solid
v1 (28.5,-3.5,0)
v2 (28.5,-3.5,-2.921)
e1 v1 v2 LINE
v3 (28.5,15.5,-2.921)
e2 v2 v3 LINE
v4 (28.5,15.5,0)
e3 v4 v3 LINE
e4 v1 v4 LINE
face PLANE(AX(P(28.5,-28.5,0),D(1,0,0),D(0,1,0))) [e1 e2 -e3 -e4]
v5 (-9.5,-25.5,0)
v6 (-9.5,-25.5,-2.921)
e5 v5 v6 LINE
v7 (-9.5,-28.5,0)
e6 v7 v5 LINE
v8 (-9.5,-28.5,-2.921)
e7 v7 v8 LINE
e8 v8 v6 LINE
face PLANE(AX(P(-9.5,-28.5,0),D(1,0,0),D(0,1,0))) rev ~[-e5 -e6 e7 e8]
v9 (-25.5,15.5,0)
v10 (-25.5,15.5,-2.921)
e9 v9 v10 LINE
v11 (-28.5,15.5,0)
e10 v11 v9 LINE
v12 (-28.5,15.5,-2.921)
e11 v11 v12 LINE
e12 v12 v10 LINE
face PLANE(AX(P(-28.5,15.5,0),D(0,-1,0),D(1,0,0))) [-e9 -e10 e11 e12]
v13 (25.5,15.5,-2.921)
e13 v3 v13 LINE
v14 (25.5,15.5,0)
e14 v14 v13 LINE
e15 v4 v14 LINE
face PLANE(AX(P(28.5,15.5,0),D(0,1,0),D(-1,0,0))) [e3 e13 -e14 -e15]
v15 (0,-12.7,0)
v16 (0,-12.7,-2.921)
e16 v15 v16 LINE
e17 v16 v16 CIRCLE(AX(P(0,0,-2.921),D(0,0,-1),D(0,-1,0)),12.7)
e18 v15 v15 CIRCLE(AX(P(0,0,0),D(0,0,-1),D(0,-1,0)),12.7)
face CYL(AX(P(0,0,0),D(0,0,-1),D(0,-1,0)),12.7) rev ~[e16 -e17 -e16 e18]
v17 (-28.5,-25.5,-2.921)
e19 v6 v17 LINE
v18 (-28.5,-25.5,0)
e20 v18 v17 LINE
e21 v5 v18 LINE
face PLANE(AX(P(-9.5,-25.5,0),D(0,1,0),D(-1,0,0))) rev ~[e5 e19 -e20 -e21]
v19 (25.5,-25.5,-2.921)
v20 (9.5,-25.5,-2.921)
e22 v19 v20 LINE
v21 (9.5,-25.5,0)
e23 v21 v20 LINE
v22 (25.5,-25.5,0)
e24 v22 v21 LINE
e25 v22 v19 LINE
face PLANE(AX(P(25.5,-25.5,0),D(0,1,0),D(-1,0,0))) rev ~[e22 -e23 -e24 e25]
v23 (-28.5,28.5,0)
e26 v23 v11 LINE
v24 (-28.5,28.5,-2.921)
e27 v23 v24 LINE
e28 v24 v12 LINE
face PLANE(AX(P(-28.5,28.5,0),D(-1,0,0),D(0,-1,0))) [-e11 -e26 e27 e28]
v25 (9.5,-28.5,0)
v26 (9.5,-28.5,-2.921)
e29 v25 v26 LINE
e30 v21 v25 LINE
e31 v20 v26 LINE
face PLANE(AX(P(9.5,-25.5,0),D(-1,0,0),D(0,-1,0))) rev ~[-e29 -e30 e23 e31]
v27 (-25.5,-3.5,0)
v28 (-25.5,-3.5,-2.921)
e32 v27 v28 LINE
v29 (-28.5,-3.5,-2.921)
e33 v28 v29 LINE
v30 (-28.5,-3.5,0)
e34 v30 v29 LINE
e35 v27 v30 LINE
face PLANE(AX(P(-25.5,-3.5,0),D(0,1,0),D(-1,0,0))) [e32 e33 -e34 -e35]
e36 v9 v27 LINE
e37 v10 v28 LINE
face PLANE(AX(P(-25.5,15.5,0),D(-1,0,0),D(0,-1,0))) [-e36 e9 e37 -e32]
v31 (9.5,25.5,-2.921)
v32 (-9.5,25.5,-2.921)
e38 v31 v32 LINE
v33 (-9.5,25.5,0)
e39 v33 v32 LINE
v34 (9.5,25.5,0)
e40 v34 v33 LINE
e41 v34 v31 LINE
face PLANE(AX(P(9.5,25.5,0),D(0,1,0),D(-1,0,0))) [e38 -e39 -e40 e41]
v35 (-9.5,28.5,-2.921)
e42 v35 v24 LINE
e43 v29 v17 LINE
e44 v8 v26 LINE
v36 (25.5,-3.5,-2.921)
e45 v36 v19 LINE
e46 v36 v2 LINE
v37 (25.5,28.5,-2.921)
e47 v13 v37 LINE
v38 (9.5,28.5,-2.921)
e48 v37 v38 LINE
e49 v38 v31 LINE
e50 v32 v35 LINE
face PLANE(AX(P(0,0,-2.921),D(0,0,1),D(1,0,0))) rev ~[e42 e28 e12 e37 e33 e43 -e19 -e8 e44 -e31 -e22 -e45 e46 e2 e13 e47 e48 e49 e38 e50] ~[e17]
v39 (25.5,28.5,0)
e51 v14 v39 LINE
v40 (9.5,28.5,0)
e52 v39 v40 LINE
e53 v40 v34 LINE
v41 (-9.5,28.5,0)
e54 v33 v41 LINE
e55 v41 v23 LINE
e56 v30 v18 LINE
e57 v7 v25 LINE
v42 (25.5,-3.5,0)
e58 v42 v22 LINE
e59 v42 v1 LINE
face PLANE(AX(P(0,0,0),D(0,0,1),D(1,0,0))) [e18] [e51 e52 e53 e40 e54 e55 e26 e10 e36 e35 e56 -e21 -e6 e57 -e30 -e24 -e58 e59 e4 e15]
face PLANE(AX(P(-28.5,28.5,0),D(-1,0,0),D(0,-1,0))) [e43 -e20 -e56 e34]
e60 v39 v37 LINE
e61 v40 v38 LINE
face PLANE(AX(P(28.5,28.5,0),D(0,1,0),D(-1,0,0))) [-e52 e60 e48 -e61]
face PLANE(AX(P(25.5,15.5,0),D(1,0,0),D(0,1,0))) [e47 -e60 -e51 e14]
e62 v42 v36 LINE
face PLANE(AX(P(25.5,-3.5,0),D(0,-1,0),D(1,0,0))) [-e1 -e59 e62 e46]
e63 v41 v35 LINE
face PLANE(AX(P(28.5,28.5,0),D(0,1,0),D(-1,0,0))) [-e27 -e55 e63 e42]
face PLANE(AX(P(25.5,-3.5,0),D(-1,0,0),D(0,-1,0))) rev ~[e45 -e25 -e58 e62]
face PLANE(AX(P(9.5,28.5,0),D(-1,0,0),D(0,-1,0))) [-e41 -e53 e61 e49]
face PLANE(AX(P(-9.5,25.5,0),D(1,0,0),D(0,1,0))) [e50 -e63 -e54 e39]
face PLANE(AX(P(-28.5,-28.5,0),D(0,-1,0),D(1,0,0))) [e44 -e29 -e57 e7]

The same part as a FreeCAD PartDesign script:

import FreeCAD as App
import Part
import Sketcher


def add_polygon(sketch, points):
    """Adds a closed chain of lines whose ends are joined by coincident constraints."""
    first, n = sketch.GeometryCount, len(points)
    for a, b in zip(points, points[1:] + points[:1]):
        sketch.addGeometry(Part.LineSegment(App.Vector(*a, 0), App.Vector(*b, 0)), False)
    for i in range(n):
        sketch.addConstraint(Sketcher.Constraint("Coincident", first + i, 2, first + (i + 1) % n, 1))

doc = App.newDocument("Part")
params = doc.addObject("Spreadsheet::Sheet", "Params")
for row, (alias, value) in enumerate([
    ("sketch1_width", "57 mm"),
    ("pad1_length", "2.921 mm"),
    ("sketch2_width", "3 mm"),
    ("sketch2_width2", "19 mm"),
    ("sketch2_height", "25 mm"),
    ("pocket1_length", "25.4 mm"),
    ("sketch3_diameter", "25.4 mm"),
    ("hole_diameter", "25.4 mm"),
], start=1):
    params.set(f"A{row}", alias)
    params.set(f"B{row}", "=" + value)
    params.setAlias(f"B{row}", alias)

body = doc.addObject("PartDesign::Body", "Body")

# Sketch on XY plane
sketch1 = doc.addObject("Sketcher::SketchObject", "Sketch")
body.addObject(sketch1)
sketch1.AttachmentSupport = (doc.XY_Plane, [""])
sketch1.MapMode = "FlatFace"
add_polygon(sketch1, [(-28, 28), (-28, -28), (28, -28), (28, 28)])  # lines 0-3
sketch1.addConstraint([
    Sketcher.Constraint("Vertical", 0),
    Sketcher.Constraint("Horizontal", 1),
    Sketcher.Constraint("Vertical", 2),
    Sketcher.Constraint("Horizontal", 3),
    Sketcher.Constraint("Symmetric", 0, 2, 2, 2, -1, 1),
    Sketcher.Constraint("Equal", 3, 0),
    Sketcher.Constraint("DistanceX", 1, 1, 1, 2, 57.0),
])
sketch1.setExpression("Constraints[10]", "Params.sketch1_width")
pad1 = doc.addObject("PartDesign::Pad", "Pad")
body.addObject(pad1)
pad1.Profile = sketch1
pad1.setExpression("Length", "Params.pad1_length")
pad1.Reversed = True

# Sketch on XY plane
sketch2 = doc.addObject("Sketcher::SketchObject", "Sketch001")
body.addObject(sketch2)
sketch2.AttachmentSupport = (doc.XY_Plane, [""])
sketch2.MapMode = "FlatFace"
add_polygon(sketch2, [(28.5, -28.5), (28.5, -3.5), (25.5, -3.5), (25.5, -25.5), (9.5, -25.5), (9.5, -28.5)])  # lines 0-5
add_polygon(sketch2, [(25.5, 15.5), (28.5, 15.5), (28.5, 28.5), (25.5, 28.5)])  # lines 6-9
add_polygon(sketch2, [(-28.5, -28.5), (-9.5, -28.5), (-9.5, -25.5), (-28.5, -25.5)])  # lines 10-13
add_polygon(sketch2, [(9.5, 25.5), (9.5, 28.5), (-9.5, 28.5), (-9.5, 25.5)])  # lines 14-17
add_polygon(sketch2, [(-28.5, 15.5), (-28.5, -3.5), (-25.5, -3.5), (-25.5, 15.5)])  # lines 18-21
sketch2.addConstraint([
    Sketcher.Constraint("Vertical", 0),
    Sketcher.Constraint("Horizontal", 1),
    Sketcher.Constraint("Vertical", 2),
    Sketcher.Constraint("Horizontal", 3),
    Sketcher.Constraint("Vertical", 4),
    Sketcher.Constraint("Horizontal", 5),
    Sketcher.Constraint("Horizontal", 6),
    Sketcher.Constraint("Vertical", 7),
    Sketcher.Constraint("Horizontal", 8),
    Sketcher.Constraint("Vertical", 9),
    Sketcher.Constraint("Horizontal", 10),
    Sketcher.Constraint("Vertical", 11),
    Sketcher.Constraint("Horizontal", 12),
    Sketcher.Constraint("Vertical", 13),
    Sketcher.Constraint("Vertical", 14),
    Sketcher.Constraint("Horizontal", 15),
    Sketcher.Constraint("Vertical", 16),
    Sketcher.Constraint("Horizontal", 17),
    Sketcher.Constraint("Vertical", 18),
    Sketcher.Constraint("Horizontal", 19),
    Sketcher.Constraint("Vertical", 20),
    Sketcher.Constraint("Horizontal", 21),
    Sketcher.Constraint("Symmetric", 7, 2, 13, 2, -1, 1),
    Sketcher.Constraint("Symmetric", 10, 2, 14, 2, -1, 1),
    Sketcher.Constraint("Symmetric", 4, 2, 15, 2, -1, 1),
    Sketcher.Constraint("Symmetric", 3, 2, 11, 2, -2),
    Sketcher.Constraint("Symmetric", 0, 2, 18, 2, -2),
    Sketcher.Constraint("Symmetric", 9, 2, 20, 2, -2),
    Sketcher.Constraint("Vertical", 5, 2, 6, 2),
    Sketcher.Constraint("Vertical", 2, 2, 8, 2),
    Sketcher.Constraint("Equal", 12, 15),
    Sketcher.Constraint("Equal", 21, 4),
    Sketcher.Constraint("Equal", 13, 14),
    Sketcher.Constraint("Equal", 17, 18),
    Sketcher.Constraint("DistanceX", 1, 2, 1, 1, 3.0),
    Sketcher.Constraint("DistanceX", 5, 1, 5, 2, 19.0),
    Sketcher.Constraint("DistanceY", 0, 1, 0, 2, 25.0),
    Sketcher.Constraint("DistanceY", 5, 2, 7, 2, 57.0),
])
sketch2.setExpression("Constraints[56]", "Params.sketch2_width")
sketch2.setExpression("Constraints[57]", "Params.sketch2_width2")
sketch2.setExpression("Constraints[58]", "Params.sketch2_height")
pocket1 = doc.addObject("PartDesign::Pocket", "Pocket")
body.addObject(pocket1)
pocket1.Profile = sketch2
pocket1.setExpression("Length", "Params.pocket1_length")

# Sketch on XY plane
sketch3 = doc.addObject("Sketcher::SketchObject", "Sketch002")
body.addObject(sketch3)
sketch3.AttachmentSupport = (doc.XY_Plane, [""])
sketch3.MapMode = "FlatFace"
sketch3.addGeometry(Part.Circle(App.Vector(0, 0, 0), App.Vector(0, 0, 1), 13), False)
sketch3.addConstraint([
    Sketcher.Constraint("Coincident", 0, 3, -1, 1),
    Sketcher.Constraint("Diameter", 0, 25.4),
])
sketch3.setExpression("Constraints[1]", "Params.sketch3_diameter")
doc.recompute()
hole = doc.addObject("PartDesign::Hole", "Hole")
body.addObject(hole)
hole.Profile = sketch3
hole.ThreadType = "None"
hole.setExpression("Diameter", "Params.hole_diameter")
hole.DepthType = "ThroughAll"

doc.recompute()
